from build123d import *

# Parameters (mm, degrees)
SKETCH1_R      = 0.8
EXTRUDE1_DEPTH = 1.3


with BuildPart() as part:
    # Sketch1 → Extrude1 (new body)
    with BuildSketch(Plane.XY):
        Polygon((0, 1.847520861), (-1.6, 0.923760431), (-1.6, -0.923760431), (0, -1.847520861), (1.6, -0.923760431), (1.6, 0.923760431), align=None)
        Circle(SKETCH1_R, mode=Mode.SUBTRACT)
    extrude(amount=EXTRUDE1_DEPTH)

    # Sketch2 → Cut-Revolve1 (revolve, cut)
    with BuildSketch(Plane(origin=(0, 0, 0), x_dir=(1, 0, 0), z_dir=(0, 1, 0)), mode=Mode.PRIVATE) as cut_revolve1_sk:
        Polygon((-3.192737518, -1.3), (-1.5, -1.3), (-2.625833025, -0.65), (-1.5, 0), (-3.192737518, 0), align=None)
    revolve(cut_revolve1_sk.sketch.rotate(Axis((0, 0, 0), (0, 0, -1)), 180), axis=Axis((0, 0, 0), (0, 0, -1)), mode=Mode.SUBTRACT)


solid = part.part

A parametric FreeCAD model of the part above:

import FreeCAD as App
import Part
import Sketcher
from FreeCAD import Vector
Q = App.Units.Quantity


def add_polygon(sketch, points):
    """Adds a closed chain of lines whose ends are joined by coincident constraints."""
    first, n = sketch.GeometryCount, len(points)
    for a, b in zip(points, points[1:] + points[:1]):
        sketch.addGeometry(Part.LineSegment(App.Vector(*a, 0), App.Vector(*b, 0)), False)
    for i in range(n):
        sketch.addConstraint(Sketcher.Constraint("Coincident", first + i, 2, first + (i + 1) % n, 1))

doc = App.newDocument("Part")
body = doc.addObject("PartDesign::Body", "Body")

# Sketch on XY plane
sketch1 = body.newObject("Sketcher::SketchObject", "Sketch")
sketch1.AttachmentSupport = (doc.getObject("XY_Plane"), [""])
sketch1.MapMode = "FlatFace"
add_polygon(sketch1, [(0, 1.8), (-1.6, 0.9), (-1.6, -0.9), (0, -1.8), (1.6, -0.9), (1.6, 0.9)])  # lines 0-5
sketch1.addGeometry(Part.Circle(Vector(0, 0, 0), Vector(0, 0, 1), 0.8), False)  # 6
sketch1.addConstraint(Sketcher.Constraint("Vertical", 1))
sketch1.addConstraint(Sketcher.Constraint("Vertical", 4))
sketch1.addConstraint(Sketcher.Constraint("Coincident", 6, 3, -1, 1))
sketch1.addConstraint(Sketcher.Constraint("Symmetric", 0, 2, 3, 2, -1, 1))
sketch1.addConstraint(Sketcher.Constraint("Symmetric", 2, 2, 5, 2, -1, 1))
sketch1.addConstraint(Sketcher.Constraint("PointOnObject", 2, 2, -2))
sketch1.addConstraint(Sketcher.Constraint("Parallel", 2, 5))
sketch1.addConstraint(Sketcher.Constraint("Horizontal", 1, 2, 3, 2))
sketch1.addConstraint(Sketcher.Constraint("Diameter", 6, Q("1.6 mm")))
sketch1.addConstraint(Sketcher.Constraint("Angle", 0, Q("-150 deg")))
sketch1.addConstraint(Sketcher.Constraint("DistanceX", 0, 2, -1, 1, Q("1.6 mm")))
sketch1.addConstraint(Sketcher.Constraint("DistanceY", 1, 2, 1, 1, Q("1.847521 mm")))
pad1 = body.newObject("PartDesign::Pad", "Pad")
pad1.Profile = sketch1
pad1.Length = 1.3

# Sketch on XZ plane
sketch2 = body.newObject("Sketcher::SketchObject", "Sketch001")
sketch2.AttachmentSupport = (doc.getObject("XZ_Plane"), [""])
sketch2.MapMode = "FlatFace"
add_polygon(sketch2, [(-3.2, 1.3), (-1.5, 1.3), (-2.6, 0.7), (-1.5, 0), (-3.2, 0)])  # lines 0-4
sketch2.addConstraint(Sketcher.Constraint("Horizontal", 0))
sketch2.addConstraint(Sketcher.Constraint("Horizontal", 3))
sketch2.addConstraint(Sketcher.Constraint("Vertical", 4))
sketch2.addConstraint(Sketcher.Constraint("PointOnObject", 2, 2, -1))
sketch2.addConstraint(Sketcher.Constraint("Vertical", 0, 2, 2, 2))
sketch2.addConstraint(Sketcher.Constraint("Equal", 1, 2))
sketch2.addConstraint(Sketcher.Constraint("Angle", 1, Q("-150 deg")))
sketch2.addConstraint(Sketcher.Constraint("DistanceY", 4, 1, 4, 2, Q("1.3 mm")))
sketch2.addConstraint(Sketcher.Constraint("DistanceX", 0, 2, -1, 1, Q("1.5 mm")))
sketch2.addConstraint(Sketcher.Constraint("DistanceX", 0, 1, 0, 2, Q("1.692738 mm")))
groove = body.newObject("PartDesign::Groove", "Groove")
groove.Profile = sketch2
groove.ReferenceAxis = (sketch2, ["V_Axis"])
groove.Angle = 360

doc.recompute()
